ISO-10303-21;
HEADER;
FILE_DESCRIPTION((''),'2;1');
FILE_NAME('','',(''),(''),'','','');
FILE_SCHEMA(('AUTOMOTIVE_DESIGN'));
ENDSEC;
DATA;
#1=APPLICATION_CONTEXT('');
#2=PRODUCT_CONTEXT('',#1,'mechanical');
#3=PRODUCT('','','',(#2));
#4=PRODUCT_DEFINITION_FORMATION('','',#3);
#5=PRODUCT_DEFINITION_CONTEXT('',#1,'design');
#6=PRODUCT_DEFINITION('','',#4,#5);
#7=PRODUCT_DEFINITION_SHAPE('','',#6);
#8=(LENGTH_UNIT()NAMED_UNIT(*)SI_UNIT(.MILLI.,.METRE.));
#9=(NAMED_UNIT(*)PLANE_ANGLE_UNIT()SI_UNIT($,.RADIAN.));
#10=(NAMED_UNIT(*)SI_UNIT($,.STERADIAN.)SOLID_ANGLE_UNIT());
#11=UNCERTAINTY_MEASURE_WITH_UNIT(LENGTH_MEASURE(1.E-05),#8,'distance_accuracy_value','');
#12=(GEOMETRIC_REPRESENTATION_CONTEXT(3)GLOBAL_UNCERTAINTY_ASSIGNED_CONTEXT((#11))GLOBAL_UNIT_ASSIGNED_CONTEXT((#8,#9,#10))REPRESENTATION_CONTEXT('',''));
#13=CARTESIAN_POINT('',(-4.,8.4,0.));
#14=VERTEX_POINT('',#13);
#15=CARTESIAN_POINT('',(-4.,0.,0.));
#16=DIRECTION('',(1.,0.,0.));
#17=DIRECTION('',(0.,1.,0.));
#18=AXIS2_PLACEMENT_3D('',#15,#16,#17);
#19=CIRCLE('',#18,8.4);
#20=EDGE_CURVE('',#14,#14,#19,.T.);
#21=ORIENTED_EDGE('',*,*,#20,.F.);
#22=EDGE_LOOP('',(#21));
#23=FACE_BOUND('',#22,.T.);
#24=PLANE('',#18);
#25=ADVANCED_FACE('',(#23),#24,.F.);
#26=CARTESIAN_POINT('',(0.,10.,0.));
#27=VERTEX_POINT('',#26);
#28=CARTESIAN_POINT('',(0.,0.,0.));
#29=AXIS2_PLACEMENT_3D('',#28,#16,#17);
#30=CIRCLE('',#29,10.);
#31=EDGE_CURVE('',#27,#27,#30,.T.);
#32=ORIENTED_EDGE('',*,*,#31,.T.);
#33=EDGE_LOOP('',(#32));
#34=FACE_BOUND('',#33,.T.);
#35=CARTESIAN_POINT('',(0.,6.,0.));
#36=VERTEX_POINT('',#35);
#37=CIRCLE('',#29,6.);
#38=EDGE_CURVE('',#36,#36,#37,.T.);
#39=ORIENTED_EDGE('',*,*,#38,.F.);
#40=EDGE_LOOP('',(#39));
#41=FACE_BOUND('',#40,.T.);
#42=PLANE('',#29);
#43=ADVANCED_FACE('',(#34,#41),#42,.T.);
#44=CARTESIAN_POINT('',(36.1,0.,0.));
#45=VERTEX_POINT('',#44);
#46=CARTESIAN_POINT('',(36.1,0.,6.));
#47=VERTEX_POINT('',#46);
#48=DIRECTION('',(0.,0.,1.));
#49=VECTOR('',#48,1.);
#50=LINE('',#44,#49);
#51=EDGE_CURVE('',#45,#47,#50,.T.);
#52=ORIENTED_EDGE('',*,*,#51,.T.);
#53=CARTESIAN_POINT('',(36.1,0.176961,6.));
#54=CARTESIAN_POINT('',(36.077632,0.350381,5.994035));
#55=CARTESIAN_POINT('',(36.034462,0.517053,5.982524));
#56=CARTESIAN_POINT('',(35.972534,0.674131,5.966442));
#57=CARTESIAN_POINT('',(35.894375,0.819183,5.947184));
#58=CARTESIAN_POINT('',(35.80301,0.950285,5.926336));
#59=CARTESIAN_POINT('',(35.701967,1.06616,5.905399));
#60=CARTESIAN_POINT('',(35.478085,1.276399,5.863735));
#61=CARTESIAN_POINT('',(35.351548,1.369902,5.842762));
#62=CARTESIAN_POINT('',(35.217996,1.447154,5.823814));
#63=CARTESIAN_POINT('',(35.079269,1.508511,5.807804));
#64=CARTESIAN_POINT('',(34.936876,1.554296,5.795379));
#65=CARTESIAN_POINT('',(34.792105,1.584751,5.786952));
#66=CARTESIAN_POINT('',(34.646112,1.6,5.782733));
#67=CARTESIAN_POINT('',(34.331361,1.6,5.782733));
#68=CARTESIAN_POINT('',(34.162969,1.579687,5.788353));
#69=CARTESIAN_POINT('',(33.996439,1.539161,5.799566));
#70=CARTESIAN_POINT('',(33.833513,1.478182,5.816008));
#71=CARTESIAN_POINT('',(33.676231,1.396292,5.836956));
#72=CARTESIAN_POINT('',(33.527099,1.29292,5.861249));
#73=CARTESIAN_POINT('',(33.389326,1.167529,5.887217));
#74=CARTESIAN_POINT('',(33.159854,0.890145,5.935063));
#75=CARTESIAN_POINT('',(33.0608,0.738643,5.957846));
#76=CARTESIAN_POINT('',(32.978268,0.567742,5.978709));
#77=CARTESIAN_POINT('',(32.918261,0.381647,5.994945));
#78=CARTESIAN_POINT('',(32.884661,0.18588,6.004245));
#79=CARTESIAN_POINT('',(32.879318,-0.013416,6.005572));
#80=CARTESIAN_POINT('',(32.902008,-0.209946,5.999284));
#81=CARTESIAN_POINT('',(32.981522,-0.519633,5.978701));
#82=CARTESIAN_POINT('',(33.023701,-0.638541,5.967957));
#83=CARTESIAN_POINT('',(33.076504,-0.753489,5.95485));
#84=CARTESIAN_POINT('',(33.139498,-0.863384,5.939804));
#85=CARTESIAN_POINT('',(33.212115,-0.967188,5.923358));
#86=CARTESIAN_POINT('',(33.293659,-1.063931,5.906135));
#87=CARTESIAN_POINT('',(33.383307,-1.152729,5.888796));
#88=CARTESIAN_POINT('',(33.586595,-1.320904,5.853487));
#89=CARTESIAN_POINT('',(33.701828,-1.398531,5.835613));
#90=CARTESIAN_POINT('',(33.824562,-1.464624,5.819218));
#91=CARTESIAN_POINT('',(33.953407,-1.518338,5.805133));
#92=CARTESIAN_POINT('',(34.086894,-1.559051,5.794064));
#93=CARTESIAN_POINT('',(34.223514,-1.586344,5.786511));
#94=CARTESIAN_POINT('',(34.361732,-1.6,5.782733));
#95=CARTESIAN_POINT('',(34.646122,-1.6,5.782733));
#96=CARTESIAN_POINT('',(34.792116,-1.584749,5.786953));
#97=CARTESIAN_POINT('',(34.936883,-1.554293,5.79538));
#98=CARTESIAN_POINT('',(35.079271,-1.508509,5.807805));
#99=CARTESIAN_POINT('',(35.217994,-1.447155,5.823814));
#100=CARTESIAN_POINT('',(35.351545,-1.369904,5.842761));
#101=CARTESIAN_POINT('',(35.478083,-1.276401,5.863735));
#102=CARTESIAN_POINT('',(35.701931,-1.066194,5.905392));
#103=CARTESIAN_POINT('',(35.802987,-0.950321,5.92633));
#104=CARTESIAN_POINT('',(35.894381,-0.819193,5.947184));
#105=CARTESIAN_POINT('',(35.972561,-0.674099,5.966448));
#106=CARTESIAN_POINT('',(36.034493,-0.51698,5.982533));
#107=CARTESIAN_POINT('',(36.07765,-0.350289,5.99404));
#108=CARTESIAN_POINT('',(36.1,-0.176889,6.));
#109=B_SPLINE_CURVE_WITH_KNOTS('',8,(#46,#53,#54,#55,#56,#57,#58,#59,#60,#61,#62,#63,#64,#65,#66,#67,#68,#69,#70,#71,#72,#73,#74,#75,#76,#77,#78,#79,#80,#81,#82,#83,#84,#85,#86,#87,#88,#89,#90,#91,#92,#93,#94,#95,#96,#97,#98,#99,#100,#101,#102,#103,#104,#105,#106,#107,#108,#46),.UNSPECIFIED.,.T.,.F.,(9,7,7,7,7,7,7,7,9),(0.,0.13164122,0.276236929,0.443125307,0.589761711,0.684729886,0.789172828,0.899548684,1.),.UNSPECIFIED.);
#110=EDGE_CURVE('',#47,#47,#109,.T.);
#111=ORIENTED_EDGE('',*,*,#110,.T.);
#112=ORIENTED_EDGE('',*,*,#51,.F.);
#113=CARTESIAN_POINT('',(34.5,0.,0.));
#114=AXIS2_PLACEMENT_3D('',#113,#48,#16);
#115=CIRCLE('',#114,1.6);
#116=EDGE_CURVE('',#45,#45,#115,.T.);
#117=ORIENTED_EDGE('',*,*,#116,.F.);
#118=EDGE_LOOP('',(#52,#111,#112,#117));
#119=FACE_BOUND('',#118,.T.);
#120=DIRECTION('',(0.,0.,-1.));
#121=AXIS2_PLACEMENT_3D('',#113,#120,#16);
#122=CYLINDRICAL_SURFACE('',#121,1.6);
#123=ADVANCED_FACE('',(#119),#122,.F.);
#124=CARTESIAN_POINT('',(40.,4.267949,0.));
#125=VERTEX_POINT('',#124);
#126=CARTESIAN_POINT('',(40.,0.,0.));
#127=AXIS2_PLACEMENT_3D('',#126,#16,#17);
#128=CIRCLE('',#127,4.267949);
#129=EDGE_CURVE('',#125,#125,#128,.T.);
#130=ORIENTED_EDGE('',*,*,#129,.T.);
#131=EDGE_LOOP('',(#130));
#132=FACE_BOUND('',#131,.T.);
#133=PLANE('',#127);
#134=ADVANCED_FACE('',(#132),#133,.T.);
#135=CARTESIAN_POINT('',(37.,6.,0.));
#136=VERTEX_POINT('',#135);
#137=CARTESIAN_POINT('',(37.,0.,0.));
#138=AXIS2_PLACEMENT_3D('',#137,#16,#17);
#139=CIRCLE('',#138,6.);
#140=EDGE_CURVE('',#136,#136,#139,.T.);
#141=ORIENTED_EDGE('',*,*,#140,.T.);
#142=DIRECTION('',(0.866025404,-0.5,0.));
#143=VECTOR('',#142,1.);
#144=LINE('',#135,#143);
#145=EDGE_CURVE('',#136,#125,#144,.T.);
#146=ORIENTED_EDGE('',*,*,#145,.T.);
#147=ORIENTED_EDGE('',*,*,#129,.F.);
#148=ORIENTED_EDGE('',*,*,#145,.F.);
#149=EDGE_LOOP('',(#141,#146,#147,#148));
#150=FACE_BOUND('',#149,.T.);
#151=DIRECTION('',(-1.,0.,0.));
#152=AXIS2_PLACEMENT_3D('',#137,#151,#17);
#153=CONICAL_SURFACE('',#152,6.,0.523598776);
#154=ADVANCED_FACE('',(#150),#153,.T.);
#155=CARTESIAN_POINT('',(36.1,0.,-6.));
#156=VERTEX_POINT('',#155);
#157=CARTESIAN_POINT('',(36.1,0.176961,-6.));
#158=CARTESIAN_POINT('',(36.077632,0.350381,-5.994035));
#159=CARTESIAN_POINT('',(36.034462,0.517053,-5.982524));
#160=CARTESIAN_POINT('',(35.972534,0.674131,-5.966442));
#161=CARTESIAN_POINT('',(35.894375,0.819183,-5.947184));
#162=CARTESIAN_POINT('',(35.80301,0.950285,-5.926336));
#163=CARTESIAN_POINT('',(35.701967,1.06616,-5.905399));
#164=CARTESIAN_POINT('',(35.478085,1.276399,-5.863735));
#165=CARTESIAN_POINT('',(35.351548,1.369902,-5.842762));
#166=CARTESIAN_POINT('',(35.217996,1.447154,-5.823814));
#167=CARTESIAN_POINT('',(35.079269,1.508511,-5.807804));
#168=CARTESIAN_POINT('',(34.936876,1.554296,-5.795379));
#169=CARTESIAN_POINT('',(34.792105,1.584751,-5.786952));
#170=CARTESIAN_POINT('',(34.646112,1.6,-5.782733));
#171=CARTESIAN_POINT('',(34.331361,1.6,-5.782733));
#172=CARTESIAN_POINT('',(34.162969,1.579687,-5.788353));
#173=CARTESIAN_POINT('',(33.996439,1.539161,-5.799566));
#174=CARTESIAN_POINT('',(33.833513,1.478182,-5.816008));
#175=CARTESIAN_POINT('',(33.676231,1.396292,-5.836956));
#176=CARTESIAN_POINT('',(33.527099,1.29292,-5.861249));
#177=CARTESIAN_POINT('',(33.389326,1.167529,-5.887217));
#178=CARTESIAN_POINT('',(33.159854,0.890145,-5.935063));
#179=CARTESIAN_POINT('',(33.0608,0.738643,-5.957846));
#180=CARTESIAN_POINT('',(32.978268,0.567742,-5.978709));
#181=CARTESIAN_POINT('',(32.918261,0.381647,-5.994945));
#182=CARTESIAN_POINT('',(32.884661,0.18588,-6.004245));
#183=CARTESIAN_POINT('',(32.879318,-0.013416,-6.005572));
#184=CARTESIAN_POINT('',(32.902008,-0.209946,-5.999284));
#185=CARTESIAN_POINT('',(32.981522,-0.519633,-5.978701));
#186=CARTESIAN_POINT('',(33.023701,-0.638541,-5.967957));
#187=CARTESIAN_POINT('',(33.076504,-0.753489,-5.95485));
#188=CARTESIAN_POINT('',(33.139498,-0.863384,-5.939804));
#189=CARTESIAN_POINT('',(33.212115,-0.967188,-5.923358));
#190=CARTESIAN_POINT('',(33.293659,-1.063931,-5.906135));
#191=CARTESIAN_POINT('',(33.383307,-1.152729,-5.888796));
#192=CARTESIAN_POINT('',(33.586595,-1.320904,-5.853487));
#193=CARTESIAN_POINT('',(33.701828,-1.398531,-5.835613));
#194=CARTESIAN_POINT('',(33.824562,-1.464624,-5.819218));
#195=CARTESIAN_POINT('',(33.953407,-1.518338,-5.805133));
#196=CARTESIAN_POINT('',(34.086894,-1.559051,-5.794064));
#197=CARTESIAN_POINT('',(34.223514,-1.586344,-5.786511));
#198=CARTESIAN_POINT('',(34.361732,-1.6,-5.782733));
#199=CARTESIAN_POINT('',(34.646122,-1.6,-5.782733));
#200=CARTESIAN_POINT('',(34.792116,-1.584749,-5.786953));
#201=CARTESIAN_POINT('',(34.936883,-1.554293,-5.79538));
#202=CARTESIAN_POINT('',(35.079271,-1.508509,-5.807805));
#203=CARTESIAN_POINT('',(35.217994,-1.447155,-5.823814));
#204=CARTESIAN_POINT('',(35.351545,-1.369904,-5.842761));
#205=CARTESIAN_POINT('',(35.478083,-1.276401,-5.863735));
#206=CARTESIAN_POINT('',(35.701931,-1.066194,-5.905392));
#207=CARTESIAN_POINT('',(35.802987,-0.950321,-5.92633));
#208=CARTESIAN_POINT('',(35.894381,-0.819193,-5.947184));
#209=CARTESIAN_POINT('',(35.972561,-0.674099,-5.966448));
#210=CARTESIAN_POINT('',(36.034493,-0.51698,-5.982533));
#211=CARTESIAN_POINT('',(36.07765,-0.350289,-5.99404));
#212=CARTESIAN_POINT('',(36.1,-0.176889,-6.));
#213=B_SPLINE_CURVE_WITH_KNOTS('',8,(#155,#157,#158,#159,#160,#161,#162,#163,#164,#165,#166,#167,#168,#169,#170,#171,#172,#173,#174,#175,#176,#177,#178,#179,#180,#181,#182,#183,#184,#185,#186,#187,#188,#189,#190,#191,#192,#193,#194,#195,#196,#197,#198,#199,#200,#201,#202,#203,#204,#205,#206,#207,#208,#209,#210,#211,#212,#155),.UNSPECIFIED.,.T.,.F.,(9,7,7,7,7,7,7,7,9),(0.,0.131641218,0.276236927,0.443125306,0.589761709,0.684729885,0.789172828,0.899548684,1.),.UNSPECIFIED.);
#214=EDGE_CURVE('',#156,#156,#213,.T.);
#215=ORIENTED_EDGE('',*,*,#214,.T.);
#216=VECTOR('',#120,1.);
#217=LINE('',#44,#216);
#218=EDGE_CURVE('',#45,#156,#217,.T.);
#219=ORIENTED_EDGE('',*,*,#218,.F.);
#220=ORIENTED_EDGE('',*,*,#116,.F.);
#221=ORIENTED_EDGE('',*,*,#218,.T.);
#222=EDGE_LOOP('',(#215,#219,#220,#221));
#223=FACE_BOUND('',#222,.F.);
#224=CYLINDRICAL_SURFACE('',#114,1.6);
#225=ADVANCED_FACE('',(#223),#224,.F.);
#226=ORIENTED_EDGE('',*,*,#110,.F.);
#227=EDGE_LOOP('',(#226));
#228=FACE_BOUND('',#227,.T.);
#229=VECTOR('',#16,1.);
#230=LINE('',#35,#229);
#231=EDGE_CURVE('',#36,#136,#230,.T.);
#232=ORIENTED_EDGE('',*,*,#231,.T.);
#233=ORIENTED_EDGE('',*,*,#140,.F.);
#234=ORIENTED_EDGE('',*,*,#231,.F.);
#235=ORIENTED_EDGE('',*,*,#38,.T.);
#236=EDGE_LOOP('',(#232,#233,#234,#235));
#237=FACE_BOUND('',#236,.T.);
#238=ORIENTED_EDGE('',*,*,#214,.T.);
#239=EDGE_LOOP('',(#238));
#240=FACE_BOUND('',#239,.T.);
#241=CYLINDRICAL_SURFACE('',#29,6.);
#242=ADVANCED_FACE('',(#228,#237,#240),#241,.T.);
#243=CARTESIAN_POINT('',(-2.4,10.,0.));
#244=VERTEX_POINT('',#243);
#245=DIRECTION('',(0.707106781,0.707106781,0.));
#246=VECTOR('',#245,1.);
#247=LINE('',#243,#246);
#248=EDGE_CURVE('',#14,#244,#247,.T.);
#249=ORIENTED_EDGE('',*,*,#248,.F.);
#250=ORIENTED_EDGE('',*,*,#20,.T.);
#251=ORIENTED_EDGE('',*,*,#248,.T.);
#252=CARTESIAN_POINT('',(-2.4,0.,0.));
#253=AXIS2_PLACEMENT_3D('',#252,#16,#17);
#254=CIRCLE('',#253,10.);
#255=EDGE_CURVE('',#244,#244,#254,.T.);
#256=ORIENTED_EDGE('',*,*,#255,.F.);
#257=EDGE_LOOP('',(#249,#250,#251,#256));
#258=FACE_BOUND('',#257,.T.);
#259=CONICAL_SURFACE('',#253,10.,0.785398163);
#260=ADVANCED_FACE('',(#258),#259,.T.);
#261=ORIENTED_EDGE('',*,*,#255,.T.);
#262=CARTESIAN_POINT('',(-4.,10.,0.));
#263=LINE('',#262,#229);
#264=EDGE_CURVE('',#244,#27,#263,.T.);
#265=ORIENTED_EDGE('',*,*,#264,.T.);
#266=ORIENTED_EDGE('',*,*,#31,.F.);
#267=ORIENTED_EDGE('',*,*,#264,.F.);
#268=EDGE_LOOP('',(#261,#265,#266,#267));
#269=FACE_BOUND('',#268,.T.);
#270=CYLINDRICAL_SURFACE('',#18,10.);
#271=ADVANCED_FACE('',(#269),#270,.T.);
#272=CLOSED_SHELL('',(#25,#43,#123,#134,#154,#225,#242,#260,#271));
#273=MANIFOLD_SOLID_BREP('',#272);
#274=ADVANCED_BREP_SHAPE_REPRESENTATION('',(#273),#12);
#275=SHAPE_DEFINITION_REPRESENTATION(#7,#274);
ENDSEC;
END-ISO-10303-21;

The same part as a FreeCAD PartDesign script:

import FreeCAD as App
import Part
import Sketcher
from FreeCAD import Vector
Q = App.Units.Quantity


def edges_at(feature, points):
    """Names of the edges that pass closest to the given points."""
    edges = feature.Shape.Edges
    near = lambda p: min(range(len(edges)), key=lambda i: edges[i].distToShape(Part.Vertex(*p))[0])
    return sorted({f"Edge{near(p) + 1}" for p in points})

doc = App.newDocument("Part")
body = doc.addObject("PartDesign::Body", "Body")

# Sketch on XY plane
sketch1 = body.newObject("Sketcher::SketchObject", "Sketch")
sketch1.AttachmentSupport = (doc.getObject("XY_Plane"), [""])
sketch1.MapMode = "FlatFace"
sketch1.addGeometry([
    Part.LineSegment(Vector(-4, 10, 0), Vector(-4, 0, 0)),  # 0
    Part.LineSegment(Vector(-4, 0, 0), Vector(40, 0, 0)),  # 1
    Part.LineSegment(Vector(40, 0, 0), Vector(40, 6, 0)),  # 2
    Part.LineSegment(Vector(40, 6, 0), Vector(0, 6, 0)),  # 3
    Part.LineSegment(Vector(0, 6, 0), Vector(0, 10, 0)),  # 4
    Part.LineSegment(Vector(0, 10, 0), Vector(-4, 10, 0)),  # 5
], False)
sketch1.addConstraint([
    Sketcher.Constraint("Coincident", 0, 2, 1, 1),
    Sketcher.Constraint("Coincident", 1, 2, 2, 1),
    Sketcher.Constraint("Coincident", 2, 2, 3, 1),
    Sketcher.Constraint("Coincident", 3, 2, 4, 1),
    Sketcher.Constraint("Coincident", 4, 2, 5, 1),
    Sketcher.Constraint("Coincident", 5, 2, 0, 1),
    Sketcher.Constraint("Vertical", 0),
    Sketcher.Constraint("Horizontal", 1),
    Sketcher.Constraint("Vertical", 2),
    Sketcher.Constraint("Horizontal", 3),
    Sketcher.Constraint("Vertical", 4),
    Sketcher.Constraint("Horizontal", 5),
    Sketcher.Constraint("PointOnObject", 0, 2, -1),
    Sketcher.Constraint("PointOnObject", 3, 2, -2),
    Sketcher.Constraint("Equal", 5, 4),
    Sketcher.Constraint("DistanceX", 3, 2, 3, 1, Q("40 mm")),
    Sketcher.Constraint("DistanceX", 5, 2, 5, 1, Q("4 mm")),
    Sketcher.Constraint("DistanceY", 0, 2, 0, 1, Q("10 mm")),
])
revolution = body.newObject("PartDesign::Revolution", "Revolution")
revolution.Profile = sketch1
revolution.ReferenceAxis = (sketch1, ["H_Axis"])
revolution.Angle = 360

# Sketch on XY plane
sketch2 = body.newObject("Sketcher::SketchObject", "Sketch001")
sketch2.AttachmentSupport = (doc.getObject("XY_Plane"), [""])
sketch2.MapMode = "FlatFace"
sketch2.addGeometry(Part.Circle(Vector(34.5, 0, 0), Vector(0, 0, 1), 1.6), False)
sketch2.addConstraint([
    Sketcher.Constraint("PointOnObject", 0, 3, -1),
    Sketcher.Constraint("Diameter", 0, Q("3.2 mm")),
    Sketcher.Constraint("DistanceX", -1, 1, 0, 3, Q("34.5 mm")),
])
pocket1 = body.newObject("PartDesign::Pocket", "Pocket")
pocket1.Profile = sketch2
pocket1.Type = "ThroughAll"
pocket1.Midplane = True
doc.recompute()

chamfer = body.newObject("PartDesign::Chamfer", "Chamfer")
chamfer.Base = (pocket1, edges_at(pocket1, [(-4, -10, 0)]))
chamfer.Size = 1.6
doc.recompute()

chamfer2 = body.newObject("PartDesign::Chamfer", "Chamfer001")
chamfer2.Base = (chamfer, edges_at(chamfer, [(40, -6, 0)]))
chamfer2.ChamferType = "Distance and Angle"
chamfer2.Size = 3
chamfer2.Angle = 30

doc.recompute()
